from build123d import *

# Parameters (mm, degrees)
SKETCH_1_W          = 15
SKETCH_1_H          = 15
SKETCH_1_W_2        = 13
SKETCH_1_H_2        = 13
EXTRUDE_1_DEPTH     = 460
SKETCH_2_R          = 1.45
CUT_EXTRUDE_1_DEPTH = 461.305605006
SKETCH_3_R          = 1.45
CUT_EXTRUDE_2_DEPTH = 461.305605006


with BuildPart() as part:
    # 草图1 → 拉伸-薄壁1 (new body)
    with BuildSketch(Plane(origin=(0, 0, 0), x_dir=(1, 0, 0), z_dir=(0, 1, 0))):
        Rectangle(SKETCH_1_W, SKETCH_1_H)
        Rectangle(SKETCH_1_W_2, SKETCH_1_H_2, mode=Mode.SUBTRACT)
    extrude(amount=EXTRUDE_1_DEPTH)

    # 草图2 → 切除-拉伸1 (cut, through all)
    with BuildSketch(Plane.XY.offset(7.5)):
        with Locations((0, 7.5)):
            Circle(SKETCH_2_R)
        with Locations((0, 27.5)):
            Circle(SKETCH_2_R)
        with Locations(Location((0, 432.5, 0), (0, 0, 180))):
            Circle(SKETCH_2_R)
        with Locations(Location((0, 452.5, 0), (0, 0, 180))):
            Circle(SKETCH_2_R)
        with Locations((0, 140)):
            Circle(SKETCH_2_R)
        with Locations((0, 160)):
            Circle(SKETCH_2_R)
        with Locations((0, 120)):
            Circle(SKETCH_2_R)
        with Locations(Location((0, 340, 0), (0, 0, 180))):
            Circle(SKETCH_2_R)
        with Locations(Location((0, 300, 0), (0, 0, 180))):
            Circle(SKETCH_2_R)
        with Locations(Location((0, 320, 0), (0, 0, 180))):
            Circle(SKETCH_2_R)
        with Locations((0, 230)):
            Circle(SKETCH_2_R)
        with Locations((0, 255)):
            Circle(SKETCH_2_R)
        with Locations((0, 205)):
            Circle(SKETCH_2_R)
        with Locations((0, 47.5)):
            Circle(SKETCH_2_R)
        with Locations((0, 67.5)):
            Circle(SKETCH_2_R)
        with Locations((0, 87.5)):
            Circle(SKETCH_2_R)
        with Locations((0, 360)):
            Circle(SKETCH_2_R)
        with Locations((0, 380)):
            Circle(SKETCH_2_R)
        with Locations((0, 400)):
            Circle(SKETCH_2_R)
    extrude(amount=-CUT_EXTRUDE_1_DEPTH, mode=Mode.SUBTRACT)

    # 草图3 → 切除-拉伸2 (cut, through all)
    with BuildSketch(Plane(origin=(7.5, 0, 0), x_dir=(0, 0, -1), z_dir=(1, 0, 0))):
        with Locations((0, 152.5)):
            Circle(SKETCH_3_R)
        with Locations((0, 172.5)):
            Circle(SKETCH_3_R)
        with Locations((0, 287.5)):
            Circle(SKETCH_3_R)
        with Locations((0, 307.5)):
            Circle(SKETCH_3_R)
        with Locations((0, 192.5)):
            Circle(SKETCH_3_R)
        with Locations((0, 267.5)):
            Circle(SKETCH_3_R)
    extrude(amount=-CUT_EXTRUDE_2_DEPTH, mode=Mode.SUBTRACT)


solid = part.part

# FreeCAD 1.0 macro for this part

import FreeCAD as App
import Part
import Sketcher
Q = App.Units.Quantity


def add_polygon(sketch, points):
    """Adds a closed chain of lines whose ends are joined by coincident constraints."""
    first, n = sketch.GeometryCount, len(points)
    for a, b in zip(points, points[1:] + points[:1]):
        sketch.addGeometry(Part.LineSegment(App.Vector(*a, 0), App.Vector(*b, 0)), False)
    for i in range(n):
        sketch.addConstraint(Sketcher.Constraint("Coincident", first + i, 2, first + (i + 1) % n, 1))

doc = App.newDocument("Part")
params = doc.addObject("Spreadsheet::Sheet", "Params")
for row, (alias, value) in enumerate([
    ("sketch1_width", "15 mm"),
    ("sketch1_width2", "13 mm"),
    ("pad1_length", "460 mm"),
    ("sketch2_diameter", "2.9 mm"),
    ("sketch3_diameter", "2.9 mm"),
], start=1):
    params.set(f"A{row}", alias)
    params.set(f"B{row}", "=" + value)
    params.setAlias(f"B{row}", alias)

body = doc.addObject("PartDesign::Body", "Body")

# Sketch on XZ plane
sketch1 = body.newObject("Sketcher::SketchObject", "Sketch")
sketch1.AttachmentSupport = (doc.getObject("XZ_Plane"), [""])
sketch1.MapMode = "FlatFace"
add_polygon(sketch1, [(-8, -8), (-8, 8), (8, 8), (8, -8)])  # lines 0-3
add_polygon(sketch1, [(6, 6), (-6, 6), (-6, -6), (6, -6)])  # lines 4-7
sketch1.addConstraint(Sketcher.Constraint("Vertical", 0))
sketch1.addConstraint(Sketcher.Constraint("Horizontal", 1))
sketch1.addConstraint(Sketcher.Constraint("Vertical", 2))
sketch1.addConstraint(Sketcher.Constraint("Horizontal", 3))
sketch1.addConstraint(Sketcher.Constraint("Horizontal", 4))
sketch1.addConstraint(Sketcher.Constraint("Vertical", 5))
sketch1.addConstraint(Sketcher.Constraint("Horizontal", 6))
sketch1.addConstraint(Sketcher.Constraint("Vertical", 7))
sketch1.addConstraint(Sketcher.Constraint("Symmetric", 0, 2, 2, 2, -1, 1))
sketch1.addConstraint(Sketcher.Constraint("Symmetric", 4, 2, 6, 2, -1, 1))
sketch1.addConstraint(Sketcher.Constraint("Equal", 3, 0))
sketch1.addConstraint(Sketcher.Constraint("Equal", 6, 5))
sketch1.addConstraint(Sketcher.Constraint("DistanceX", 1, 1, 1, 2, Q("15 mm")))
sketch1.addConstraint(Sketcher.Constraint("DistanceX", 4, 2, 4, 1, Q("13 mm")))
sketch1.setExpression("Constraints[20]", "Params.sketch1_width")
sketch1.setExpression("Constraints[21]", "Params.sketch1_width2")
pad1 = body.newObject("PartDesign::Pad", "Pad")
pad1.Profile = sketch1
pad1.setExpression("Length", "Params.pad1_length")
pad1.Reversed = True

# Sketch on XY plane
sketch2 = body.newObject("Sketcher::SketchObject", "Sketch001")
sketch2.AttachmentSupport = (doc.getObject("XY_Plane"), [""])
sketch2.MapMode = "FlatFace"
sketch2.AttachmentOffset = App.Placement(App.Vector(0, 0, 7.5), App.Rotation())
sketch2.addGeometry(Part.Circle(App.Vector(0, 7.5, 0), App.Vector(0, 0, 1), 1.4), False)
sketch2.addGeometry(Part.Circle(App.Vector(0, 27.5, 0), App.Vector(0, 0, 1), 1.4), False)
sketch2.addGeometry(Part.Circle(App.Vector(0, 432.5, 0), App.Vector(0, 0, 1), 1.4), False)
sketch2.addGeometry(Part.Circle(App.Vector(0, 452.5, 0), App.Vector(0, 0, 1), 1.4), False)
sketch2.addGeometry(Part.Circle(App.Vector(0, 140, 0), App.Vector(0, 0, 1), 1.4), False)
sketch2.addGeometry(Part.Circle(App.Vector(0, 160, 0), App.Vector(0, 0, 1), 1.4), False)
sketch2.addGeometry(Part.Circle(App.Vector(0, 120, 0), App.Vector(0, 0, 1), 1.4), False)
sketch2.addGeometry(Part.Circle(App.Vector(0, 340, 0), App.Vector(0, 0, 1), 1.4), False)
sketch2.addGeometry(Part.Circle(App.Vector(0, 300, 0), App.Vector(0, 0, 1), 1.4), False)
sketch2.addGeometry(Part.Circle(App.Vector(0, 320, 0), App.Vector(0, 0, 1), 1.4), False)
sketch2.addGeometry(Part.Circle(App.Vector(0, 230, 0), App.Vector(0, 0, 1), 1.4), False)
sketch2.addGeometry(Part.Circle(App.Vector(0, 255, 0), App.Vector(0, 0, 1), 1.4), False)
sketch2.addGeometry(Part.Circle(App.Vector(0, 205, 0), App.Vector(0, 0, 1), 1.4), False)
sketch2.addGeometry(Part.Circle(App.Vector(0, 47.5, 0), App.Vector(0, 0, 1), 1.4), False)
sketch2.addGeometry(Part.Circle(App.Vector(0, 67.5, 0), App.Vector(0, 0, 1), 1.4), False)
sketch2.addGeometry(Part.Circle(App.Vector(0, 87.5, 0), App.Vector(0, 0, 1), 1.4), False)
sketch2.addGeometry(Part.Circle(App.Vector(0, 360, 0), App.Vector(0, 0, 1), 1.4), False)
sketch2.addGeometry(Part.Circle(App.Vector(0, 380, 0), App.Vector(0, 0, 1), 1.4), False)
sketch2.addGeometry(Part.Circle(App.Vector(0, 400, 0), App.Vector(0, 0, 1), 1.4), False)
sketch2.addConstraint(Sketcher.Constraint("Equal", 0, 1))
sketch2.addConstraint(Sketcher.Constraint("Equal", 1, 2))
sketch2.addConstraint(Sketcher.Constraint("Equal", 2, 3))
sketch2.addConstraint(Sketcher.Constraint("Equal", 3, 4))
sketch2.addConstraint(Sketcher.Constraint("Equal", 4, 5))
sketch2.addConstraint(Sketcher.Constraint("Equal", 5, 6))
sketch2.addConstraint(Sketcher.Constraint("Equal", 6, 7))
sketch2.addConstraint(Sketcher.Constraint("Equal", 7, 8))
sketch2.addConstraint(Sketcher.Constraint("Equal", 8, 9))
sketch2.addConstraint(Sketcher.Constraint("Equal", 9, 10))
sketch2.addConstraint(Sketcher.Constraint("Equal", 10, 11))
sketch2.addConstraint(Sketcher.Constraint("Equal", 11, 12))
sketch2.addConstraint(Sketcher.Constraint("Equal", 12, 13))
sketch2.addConstraint(Sketcher.Constraint("Equal", 13, 14))
sketch2.addConstraint(Sketcher.Constraint("Equal", 14, 15))
sketch2.addConstraint(Sketcher.Constraint("Equal", 15, 16))
sketch2.addConstraint(Sketcher.Constraint("Equal", 16, 17))
sketch2.addConstraint(Sketcher.Constraint("Equal", 17, 18))
sketch2.addConstraint(Sketcher.Constraint("PointOnObject", 0, 3, -2))
sketch2.addConstraint(Sketcher.Constraint("PointOnObject", 1, 3, -2))
sketch2.addConstraint(Sketcher.Constraint("PointOnObject", 2, 3, -2))
sketch2.addConstraint(Sketcher.Constraint("PointOnObject", 3, 3, -2))
sketch2.addConstraint(Sketcher.Constraint("PointOnObject", 4, 3, -2))
sketch2.addConstraint(Sketcher.Constraint("PointOnObject", 5, 3, -2))
sketch2.addConstraint(Sketcher.Constraint("PointOnObject", 6, 3, -2))
sketch2.addConstraint(Sketcher.Constraint("PointOnObject", 7, 3, -2))
sketch2.addConstraint(Sketcher.Constraint("PointOnObject", 8, 3, -2))
sketch2.addConstraint(Sketcher.Constraint("PointOnObject", 9, 3, -2))
sketch2.addConstraint(Sketcher.Constraint("PointOnObject", 10, 3, -2))
sketch2.addConstraint(Sketcher.Constraint("PointOnObject", 11, 3, -2))
sketch2.addConstraint(Sketcher.Constraint("PointOnObject", 12, 3, -2))
sketch2.addConstraint(Sketcher.Constraint("PointOnObject", 13, 3, -2))
sketch2.addConstraint(Sketcher.Constraint("PointOnObject", 14, 3, -2))
sketch2.addConstraint(Sketcher.Constraint("PointOnObject", 15, 3, -2))
sketch2.addConstraint(Sketcher.Constraint("PointOnObject", 16, 3, -2))
sketch2.addConstraint(Sketcher.Constraint("PointOnObject", 17, 3, -2))
sketch2.addConstraint(Sketcher.Constraint("PointOnObject", 18, 3, -2))
sketch2.addConstraint(Sketcher.Constraint("Diameter", 0, Q("2.9 mm")))
sketch2.addConstraint(Sketcher.Constraint("DistanceY", -1, 1, 4, 3, Q("140 mm")))
sketch2.addConstraint(Sketcher.Constraint("DistanceY", -1, 1, 5, 3, Q("160 mm")))
sketch2.addConstraint(Sketcher.Constraint("DistanceY", -1, 1, 6, 3, Q("120 mm")))
sketch2.addConstraint(Sketcher.Constraint("DistanceY", -1, 1, 7, 3, Q("340 mm")))
sketch2.addConstraint(Sketcher.Constraint("DistanceY", -1, 1, 8, 3, Q("300 mm")))
sketch2.addConstraint(Sketcher.Constraint("DistanceY", -1, 1, 9, 3, Q("320 mm")))
sketch2.addConstraint(Sketcher.Constraint("DistanceY", -1, 1, 10, 3, Q("230 mm")))
sketch2.addConstraint(Sketcher.Constraint("DistanceY", -1, 1, 11, 3, Q("255 mm")))
sketch2.addConstraint(Sketcher.Constraint("DistanceY", -1, 1, 12, 3, Q("205 mm")))
sketch2.addConstraint(Sketcher.Constraint("DistanceY", -1, 1, 16, 3, Q("360 mm")))
sketch2.addConstraint(Sketcher.Constraint("DistanceY", -1, 1, 17, 3, Q("380 mm")))
sketch2.addConstraint(Sketcher.Constraint("DistanceY", -1, 1, 18, 3, Q("400 mm")))
sketch2.addConstraint(Sketcher.Constraint("DistanceY", 0, 3, 1, 3, Q("20 mm")))
sketch2.addConstraint(Sketcher.Constraint("DistanceY", 1, 3, 2, 3, Q("405 mm")))
sketch2.addConstraint(Sketcher.Constraint("DistanceY", 2, 3, 3, 3, Q("20 mm")))
sketch2.addConstraint(Sketcher.Constraint("DistanceY", 1, 3, 13, 3, Q("20 mm")))
sketch2.addConstraint(Sketcher.Constraint("DistanceY", 13, 3, 14, 3, Q("20 mm")))
sketch2.addConstraint(Sketcher.Constraint("DistanceY", 14, 3, 15, 3, Q("20 mm")))
sketch2.addConstraint(Sketcher.Constraint("DistanceY", -1, 1, 0, 3, Q("7.5 mm")))
sketch2.setExpression("Constraints[37]", "Params.sketch2_diameter")
pocket1 = body.newObject("PartDesign::Pocket", "Pocket")
pocket1.Profile = sketch2
pocket1.Type = "ThroughAll"

# Sketch on YZ plane
sketch3 = body.newObject("Sketcher::SketchObject", "Sketch002")
sketch3.AttachmentSupport = (doc.getObject("YZ_Plane"), [""])
sketch3.MapMode = "FlatFace"
sketch3.AttachmentOffset = App.Placement(App.Vector(0, 0, 7.5), App.Rotation())
sketch3.addGeometry(Part.Circle(App.Vector(152.5, 0, 0), App.Vector(0, 0, 1), 1.4), False)
sketch3.addGeometry(Part.Circle(App.Vector(172.5, 0, 0), App.Vector(0, 0, 1), 1.4), False)
sketch3.addGeometry(Part.Circle(App.Vector(287.5, 0, 0), App.Vector(0, 0, 1), 1.4), False)
sketch3.addGeometry(Part.Circle(App.Vector(307.5, 0, 0), App.Vector(0, 0, 1), 1.4), False)
sketch3.addGeometry(Part.Circle(App.Vector(192.5, 0, 0), App.Vector(0, 0, 1), 1.4), False)
sketch3.addGeometry(Part.Circle(App.Vector(267.5, 0, 0), App.Vector(0, 0, 1), 1.4), False)
sketch3.addConstraint(Sketcher.Constraint("Equal", 0, 1))
sketch3.addConstraint(Sketcher.Constraint("Equal", 1, 2))
sketch3.addConstraint(Sketcher.Constraint("Equal", 2, 3))
sketch3.addConstraint(Sketcher.Constraint("Equal", 3, 4))
sketch3.addConstraint(Sketcher.Constraint("Equal", 4, 5))
sketch3.addConstraint(Sketcher.Constraint("PointOnObject", 0, 3, -1))
sketch3.addConstraint(Sketcher.Constraint("PointOnObject", 1, 3, -1))
sketch3.addConstraint(Sketcher.Constraint("PointOnObject", 2, 3, -1))
sketch3.addConstraint(Sketcher.Constraint("PointOnObject", 3, 3, -1))
sketch3.addConstraint(Sketcher.Constraint("PointOnObject", 4, 3, -1))
sketch3.addConstraint(Sketcher.Constraint("PointOnObject", 5, 3, -1))
sketch3.addConstraint(Sketcher.Constraint("Diameter", 0, Q("2.9 mm")))
sketch3.addConstraint(Sketcher.Constraint("DistanceX", 0, 3, 1, 3, Q("20 mm")))
sketch3.addConstraint(Sketcher.Constraint("DistanceX", 1, 3, 2, 3, Q("115 mm")))
sketch3.addConstraint(Sketcher.Constraint("DistanceX", 2, 3, 3, 3, Q("20 mm")))
sketch3.addConstraint(Sketcher.Constraint("DistanceX", 1, 3, 4, 3, Q("20 mm")))
sketch3.addConstraint(Sketcher.Constraint("DistanceX", 5, 3, 2, 3, Q("20 mm")))
sketch3.addConstraint(Sketcher.Constraint("DistanceX", -1, 1, 0, 3, Q("152.5 mm")))
sketch3.setExpression("Constraints[11]", "Params.sketch3_diameter")
pocket2 = body.newObject("PartDesign::Pocket", "Pocket001")
pocket2.Profile = sketch3
pocket2.Type = "ThroughAll"

doc.recompute()
